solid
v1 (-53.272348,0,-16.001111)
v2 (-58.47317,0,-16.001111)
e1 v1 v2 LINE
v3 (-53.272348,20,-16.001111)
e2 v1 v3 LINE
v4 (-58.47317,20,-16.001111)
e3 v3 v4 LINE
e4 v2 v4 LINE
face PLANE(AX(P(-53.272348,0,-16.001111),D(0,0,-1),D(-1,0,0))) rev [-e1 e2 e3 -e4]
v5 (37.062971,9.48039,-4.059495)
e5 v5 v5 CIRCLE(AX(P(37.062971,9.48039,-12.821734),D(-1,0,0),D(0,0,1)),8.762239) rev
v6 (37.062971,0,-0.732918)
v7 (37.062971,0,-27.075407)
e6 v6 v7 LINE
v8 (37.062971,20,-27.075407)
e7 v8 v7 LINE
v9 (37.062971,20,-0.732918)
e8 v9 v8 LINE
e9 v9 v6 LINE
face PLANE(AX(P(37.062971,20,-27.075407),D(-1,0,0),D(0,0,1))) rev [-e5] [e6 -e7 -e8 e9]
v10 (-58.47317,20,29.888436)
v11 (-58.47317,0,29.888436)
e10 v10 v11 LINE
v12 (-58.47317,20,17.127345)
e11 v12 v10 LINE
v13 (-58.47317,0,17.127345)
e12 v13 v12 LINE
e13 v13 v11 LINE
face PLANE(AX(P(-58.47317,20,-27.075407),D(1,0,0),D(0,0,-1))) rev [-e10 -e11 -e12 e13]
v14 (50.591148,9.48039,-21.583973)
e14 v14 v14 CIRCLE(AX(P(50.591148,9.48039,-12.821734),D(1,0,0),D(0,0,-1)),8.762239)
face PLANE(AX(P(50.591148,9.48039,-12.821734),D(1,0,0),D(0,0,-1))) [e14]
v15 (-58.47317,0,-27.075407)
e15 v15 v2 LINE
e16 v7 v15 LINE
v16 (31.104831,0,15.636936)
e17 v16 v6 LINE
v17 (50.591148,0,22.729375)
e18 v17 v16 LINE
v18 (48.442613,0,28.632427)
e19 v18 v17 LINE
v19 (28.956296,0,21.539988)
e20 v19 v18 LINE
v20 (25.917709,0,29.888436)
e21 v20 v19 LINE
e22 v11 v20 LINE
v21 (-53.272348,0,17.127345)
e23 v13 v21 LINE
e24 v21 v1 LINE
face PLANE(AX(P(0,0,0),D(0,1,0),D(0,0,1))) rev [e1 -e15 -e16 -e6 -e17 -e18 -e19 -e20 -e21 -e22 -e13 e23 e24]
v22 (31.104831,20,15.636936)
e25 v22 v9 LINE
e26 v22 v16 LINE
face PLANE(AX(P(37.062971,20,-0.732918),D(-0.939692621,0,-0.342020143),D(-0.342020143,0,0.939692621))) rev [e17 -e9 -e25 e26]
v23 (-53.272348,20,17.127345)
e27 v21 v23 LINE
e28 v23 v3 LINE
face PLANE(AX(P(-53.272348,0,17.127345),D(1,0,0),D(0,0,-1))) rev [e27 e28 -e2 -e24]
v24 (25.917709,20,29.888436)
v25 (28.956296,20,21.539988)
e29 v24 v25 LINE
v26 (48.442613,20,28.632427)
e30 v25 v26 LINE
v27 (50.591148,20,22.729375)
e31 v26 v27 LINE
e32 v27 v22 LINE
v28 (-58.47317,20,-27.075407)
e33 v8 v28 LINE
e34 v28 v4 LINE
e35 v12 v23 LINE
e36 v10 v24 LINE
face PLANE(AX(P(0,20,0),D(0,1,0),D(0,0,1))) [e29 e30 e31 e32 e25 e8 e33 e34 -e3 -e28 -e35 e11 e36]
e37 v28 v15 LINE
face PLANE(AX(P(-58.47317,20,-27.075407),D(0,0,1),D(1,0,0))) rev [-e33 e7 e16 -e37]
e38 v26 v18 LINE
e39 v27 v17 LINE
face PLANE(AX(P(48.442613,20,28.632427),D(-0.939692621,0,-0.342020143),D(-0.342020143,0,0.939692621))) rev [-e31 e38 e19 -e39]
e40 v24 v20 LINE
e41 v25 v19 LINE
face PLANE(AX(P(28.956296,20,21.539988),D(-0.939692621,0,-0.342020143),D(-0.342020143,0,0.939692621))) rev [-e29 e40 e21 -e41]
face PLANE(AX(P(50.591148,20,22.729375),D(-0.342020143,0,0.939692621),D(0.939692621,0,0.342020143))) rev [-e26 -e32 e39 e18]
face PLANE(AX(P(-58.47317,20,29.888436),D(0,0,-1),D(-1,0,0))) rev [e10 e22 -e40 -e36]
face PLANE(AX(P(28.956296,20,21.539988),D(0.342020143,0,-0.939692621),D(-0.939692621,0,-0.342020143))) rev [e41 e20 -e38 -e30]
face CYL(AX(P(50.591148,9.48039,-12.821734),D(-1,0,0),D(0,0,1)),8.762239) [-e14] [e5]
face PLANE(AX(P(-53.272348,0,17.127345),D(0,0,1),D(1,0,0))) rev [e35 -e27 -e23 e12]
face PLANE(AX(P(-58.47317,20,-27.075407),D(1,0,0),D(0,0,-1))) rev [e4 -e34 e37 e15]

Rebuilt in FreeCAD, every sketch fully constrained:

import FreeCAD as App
import Part
import Sketcher

V = App.Vector
Q = App.Units.Quantity


def add_polygon(sketch, points):
    """Adds a closed chain of lines whose ends are joined by coincident constraints."""
    first, n = sketch.GeometryCount, len(points)
    for a, b in zip(points, points[1:] + points[:1]):
        sketch.addGeometry(Part.LineSegment(App.Vector(*a, 0), App.Vector(*b, 0)), False)
    for i in range(n):
        sketch.addConstraint(Sketcher.Constraint("Coincident", first + i, 2, first + (i + 1) % n, 1))

doc = App.newDocument("Part")
body = doc.addObject("PartDesign::Body", "Body")

sketch1 = doc.addObject("Sketcher::SketchObject", "Sketch")
body.addObject(sketch1)
sketch1.AttachmentSupport = (doc.XZ_Plane, [""])
sketch1.MapMode = "FlatFace"
add_polygon(sketch1, [(37, -1), (37, -27), (-58, -27), (-58, 30), (26, 30), (29, 22), (48, 29), (51, 23), (31, 16)])
sketch1.addConstraint(Sketcher.Constraint("Vertical", 0))
sketch1.addConstraint(Sketcher.Constraint("Horizontal", 1))
sketch1.addConstraint(Sketcher.Constraint("Vertical", 2))
sketch1.addConstraint(Sketcher.Constraint("Horizontal", 3))
sketch1.addConstraint(Sketcher.Constraint("Perpendicular", 4, 5))
sketch1.addConstraint(Sketcher.Constraint("Perpendicular", 5, 6))
sketch1.addConstraint(Sketcher.Constraint("Perpendicular", 6, 7))
sketch1.addConstraint(Sketcher.Constraint("Perpendicular", 7, 8))
sketch1.addConstraint(Sketcher.Constraint("Equal", 5, 7))
sketch1.addConstraint(Sketcher.Constraint("Angle", 4, Q("-70 deg")))
sketch1.addConstraint(Sketcher.Constraint("DistanceX", 1, 2, 1, 1, Q("95.536141 mm")))
sketch1.addConstraint(Sketcher.Constraint("DistanceX", 3, 1, 3, 2, Q("84.390879 mm")))
sketch1.addConstraint(Sketcher.Constraint("DistanceY", 0, 2, 0, 1, Q("26.342489 mm")))
sketch1.addConstraint(Sketcher.Constraint("DistanceY", 7, 2, 3, 2, Q("14.251501 mm")))
sketch1.addConstraint(Sketcher.Constraint("DistanceX", -1, 1, 0, 2, Q("37.062971 mm")))
sketch1.addConstraint(Sketcher.Constraint("DistanceY", -1, 1, 4, 2, Q("21.539988 mm")))
sketch1.addConstraint(Sketcher.Constraint("DistanceY", 8, 2, -1, 1, Q("0.732918 mm")))
sketch1.addConstraint(Sketcher.Constraint("DistanceY", 4, 2, 5, 2, Q("7.092439 mm")))
pad1 = doc.addObject("PartDesign::Pad", "Pad")
body.addObject(pad1)
pad1.Profile = sketch1
pad1.Length = 20
pad1.Reversed = True

sketch2 = doc.addObject("Sketcher::SketchObject", "Sketch001")
body.addObject(sketch2)
sketch2.AttachmentSupport = (doc.YZ_Plane, [""])
sketch2.MapMode = "FlatFace"
sketch2.AttachmentOffset = App.Placement(V(0, 0, 37.062971), App.Rotation())
sketch2.addGeometry(Part.Circle(V(9, -13, 0), V(0, 0, 1), 9), False)
sketch2.addConstraint(Sketcher.Constraint("Diameter", 0, Q("17.524477 mm")))
sketch2.addConstraint(Sketcher.Constraint("DistanceX", -1, 1, 0, 3, Q("9.48039 mm")))
sketch2.addConstraint(Sketcher.Constraint("DistanceY", 0, 3, -1, 1, Q("12.821734 mm")))
pad2 = doc.addObject("PartDesign::Pad", "Pad001")
body.addObject(pad2)
pad2.Profile = sketch2
pad2.Length = 13.528179

sketch3 = doc.addObject("Sketcher::SketchObject", "Sketch002")
body.addObject(sketch3)
sketch3.AttachmentSupport = (doc.XZ_Plane, [""])
sketch3.MapMode = "FlatFace"
sketch3.AttachmentOffset = App.Placement(V(0, 0, -20), App.Rotation())
add_polygon(sketch3, [(-58, -16), (-58, 17), (-53, 17), (-53, -16)])
sketch3.addConstraint(Sketcher.Constraint("Vertical", 0))
sketch3.addConstraint(Sketcher.Constraint("Horizontal", 1))
sketch3.addConstraint(Sketcher.Constraint("Vertical", 2))
sketch3.addConstraint(Sketcher.Constraint("Horizontal", 3))
sketch3.addConstraint(Sketcher.Constraint("DistanceX", 1, 1, 1, 2, Q("5.200822 mm")))
sketch3.addConstraint(Sketcher.Constraint("DistanceY", 0, 1, 0, 2, Q("33.128456 mm")))
sketch3.addConstraint(Sketcher.Constraint("DistanceX", 0, 2, -1, 1, Q("58.47317 mm")))
sketch3.addConstraint(Sketcher.Constraint("DistanceY", 2, 2, -1, 1, Q("16.001111 mm")))
pocket1 = doc.addObject("PartDesign::Pocket", "Pocket")
body.addObject(pocket1)
pocket1.Profile = sketch3
pocket1.Type = "ThroughAll"
pocket1.Reversed = True

doc.recompute()
